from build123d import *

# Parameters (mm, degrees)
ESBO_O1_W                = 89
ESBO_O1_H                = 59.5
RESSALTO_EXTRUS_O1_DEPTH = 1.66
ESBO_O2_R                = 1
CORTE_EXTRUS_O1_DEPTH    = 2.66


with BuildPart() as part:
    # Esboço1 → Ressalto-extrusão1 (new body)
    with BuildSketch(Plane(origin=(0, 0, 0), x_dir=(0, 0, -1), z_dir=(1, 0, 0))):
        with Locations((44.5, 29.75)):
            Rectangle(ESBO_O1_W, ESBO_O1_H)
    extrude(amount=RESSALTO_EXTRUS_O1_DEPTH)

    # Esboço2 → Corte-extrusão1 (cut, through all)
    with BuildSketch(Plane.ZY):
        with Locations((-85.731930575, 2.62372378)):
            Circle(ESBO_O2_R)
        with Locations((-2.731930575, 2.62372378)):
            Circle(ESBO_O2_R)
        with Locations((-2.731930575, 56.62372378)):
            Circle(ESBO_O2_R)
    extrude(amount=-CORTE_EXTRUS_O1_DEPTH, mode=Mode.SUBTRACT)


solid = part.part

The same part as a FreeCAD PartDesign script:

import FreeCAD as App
import Part
import Sketcher
from FreeCAD import Vector

doc = App.newDocument("Part")
body = doc.addObject("PartDesign::Body", "Body")

sketch1 = body.newObject("Sketcher::SketchObject", "Sketch")
sketch1.AttachmentSupport = (doc.getObject("YZ_Plane"), [""])
sketch1.MapMode = "FlatFace"
sketch1.addGeometry([
    Part.LineSegment(Vector(60, 0, 0), Vector(0, 0, 0)),
    Part.LineSegment(Vector(0, 0, 0), Vector(0, -89, 0)),
    Part.LineSegment(Vector(0, -89, 0), Vector(60, -89, 0)),
    Part.LineSegment(Vector(60, -89, 0), Vector(60, 0, 0)),
], False)
sketch1.addConstraint([
    Sketcher.Constraint("Coincident", 0, 2, 1, 1),
    Sketcher.Constraint("Coincident", 1, 2, 2, 1),
    Sketcher.Constraint("Coincident", 2, 2, 3, 1),
    Sketcher.Constraint("Coincident", 3, 2, 0, 1),
    Sketcher.Constraint("Horizontal", 0),
    Sketcher.Constraint("Vertical", 1),
    Sketcher.Constraint("Horizontal", 2),
    Sketcher.Constraint("Vertical", 3),
    Sketcher.Constraint("Coincident", 0, 2, -1, 1),
    Sketcher.Constraint("DistanceY", 1, 2, 1, 1, 89.0),
    Sketcher.Constraint("DistanceX", 0, 2, 0, 1, 59.5),
])
pad1 = body.newObject("PartDesign::Pad", "Pad")
pad1.Profile = sketch1
pad1.Length = 1.66

sketch2 = body.newObject("Sketcher::SketchObject", "Sketch001")
sketch2.AttachmentSupport = (doc.getObject("YZ_Plane"), [""])
sketch2.MapMode = "FlatFace"
sketch2.addGeometry([
    Part.Circle(Vector(2.6, -85.7, 0), Vector(0, 0, 1), 1),
    Part.Circle(Vector(2.6, -2.7, 0), Vector(0, 0, 1), 1),
    Part.Circle(Vector(56.6, -2.7, 0), Vector(0, 0, 1), 1),
], False)
sketch2.addConstraint([
    Sketcher.Constraint("Equal", 0, 1),
    Sketcher.Constraint("Equal", 1, 2),
    Sketcher.Constraint("Horizontal", 1, 3, 2, 3),
    Sketcher.Constraint("Vertical", 0, 3, 1, 3),
    Sketcher.Constraint("Diameter", 0, 2.0),
    Sketcher.Constraint("DistanceY", 0, 3, 1, 3, 83.0),
    Sketcher.Constraint("DistanceX", 1, 3, 2, 3, 54.0),
    Sketcher.Constraint("DistanceY", 0, 3, -1, 1, 85.731931),
    Sketcher.Constraint("DistanceX", -1, 1, 0, 3, 2.623724),
])
pocket1 = body.newObject("PartDesign::Pocket", "Pocket")
pocket1.Profile = sketch2
pocket1.Type = "ThroughAll"
pocket1.Reversed = True

doc.recompute()
